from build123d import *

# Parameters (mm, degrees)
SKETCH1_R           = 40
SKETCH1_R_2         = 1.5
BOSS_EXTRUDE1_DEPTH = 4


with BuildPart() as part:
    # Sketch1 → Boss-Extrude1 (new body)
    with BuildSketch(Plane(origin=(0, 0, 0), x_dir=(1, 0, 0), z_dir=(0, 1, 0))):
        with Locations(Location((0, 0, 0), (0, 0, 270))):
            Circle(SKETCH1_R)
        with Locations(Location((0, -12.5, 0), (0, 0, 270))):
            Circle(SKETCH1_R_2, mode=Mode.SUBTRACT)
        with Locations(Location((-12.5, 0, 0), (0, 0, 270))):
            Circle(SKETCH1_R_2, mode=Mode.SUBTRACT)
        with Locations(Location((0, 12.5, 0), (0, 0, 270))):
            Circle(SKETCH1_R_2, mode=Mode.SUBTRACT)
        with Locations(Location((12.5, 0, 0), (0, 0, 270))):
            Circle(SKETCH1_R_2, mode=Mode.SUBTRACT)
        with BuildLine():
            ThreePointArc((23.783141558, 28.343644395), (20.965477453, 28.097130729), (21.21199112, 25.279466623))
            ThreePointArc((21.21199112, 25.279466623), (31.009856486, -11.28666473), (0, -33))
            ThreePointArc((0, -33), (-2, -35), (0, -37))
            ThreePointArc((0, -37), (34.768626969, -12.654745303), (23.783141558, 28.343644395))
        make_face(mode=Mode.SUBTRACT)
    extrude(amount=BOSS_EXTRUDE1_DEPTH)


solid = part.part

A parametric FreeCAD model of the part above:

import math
import FreeCAD as App
import Part
import Sketcher
Q = App.Units.Quantity

doc = App.newDocument("Part")
body = doc.addObject("PartDesign::Body", "Body")

sketch1 = doc.addObject("Sketcher::SketchObject", "Sketch")
body.addObject(sketch1)
sketch1.AttachmentSupport = (doc.XZ_Plane, [""])
sketch1.MapMode = "FlatFace"
sketch1.addGeometry([
    Part.Circle(App.Vector(0, 0, 0), App.Vector(0, 0, 1), 40),
    Part.Circle(App.Vector(-12.5, 0, 0), App.Vector(0, 0, 1), 1.5),
    Part.Circle(App.Vector(0, -12.5, 0), App.Vector(0, 0, 1), 1.5),
    Part.Circle(App.Vector(0, 12.5, 0), App.Vector(0, 0, 1), 1.5),
    Part.Circle(App.Vector(12.5, 0, 0), App.Vector(0, 0, 1), 1.5),
    Part.ArcOfCircle(Part.Circle(App.Vector(22.5, -26.8, 0), App.Vector(0, 0, 1), 2), math.radians(130), math.radians(310)),
    Part.ArcOfCircle(Part.Circle(App.Vector(0, 0, 0), App.Vector(0, 0, 1), 37), math.radians(-50), math.radians(90)),
    Part.ArcOfCircle(Part.Circle(App.Vector(0, 35, 0), App.Vector(0, 0, 1), 2), math.radians(90), math.radians(270)),
    Part.ArcOfCircle(Part.Circle(App.Vector(0, 0, 0), App.Vector(0, 0, 1), 33), math.radians(-50), math.radians(90)),
], False)
sketch1.addConstraint([
    Sketcher.Constraint("Tangent", 5, 2, 6, 1),
    Sketcher.Constraint("Tangent", 6, 2, 7, 1),
    Sketcher.Constraint("Tangent", 7, 2, 8, 2),
    Sketcher.Constraint("Tangent", 8, 1, 5, 1),
    Sketcher.Constraint("Coincident", 0, 3, -1, 1),
    Sketcher.Constraint("Coincident", 6, 3, -1, 1),
    Sketcher.Constraint("Coincident", 8, 3, -1, 1),
    Sketcher.Constraint("Equal", 1, 2),
    Sketcher.Constraint("Equal", 2, 3),
    Sketcher.Constraint("Equal", 3, 4),
    Sketcher.Constraint("Symmetric", 2, 3, 3, 3, -1, 1),
    Sketcher.Constraint("Symmetric", 1, 3, 4, 3, -1, 1),
    Sketcher.Constraint("PointOnObject", 1, 3, -1),
    Sketcher.Constraint("PointOnObject", 2, 3, -2),
    Sketcher.Constraint("PointOnObject", 7, 3, -2),
    Sketcher.Constraint("Diameter", 0, Q("80 mm")),
    Sketcher.Constraint("Diameter", 1, Q("3 mm")),
    Sketcher.Constraint("Radius", 5, Q("2 mm")),
    Sketcher.Constraint("Radius", 6, Q("37 mm")),
    Sketcher.Constraint("DistanceY", 2, 3, 3, 3, Q("25 mm")),
    Sketcher.Constraint("DistanceX", 1, 3, 4, 3, Q("25 mm")),
    Sketcher.Constraint("DistanceX", -1, 1, 5, 2, Q("23.783142 mm")),
])
pad1 = doc.addObject("PartDesign::Pad", "Pad")
body.addObject(pad1)
pad1.Profile = sketch1
pad1.Length = 4
pad1.Reversed = True

doc.recompute()
